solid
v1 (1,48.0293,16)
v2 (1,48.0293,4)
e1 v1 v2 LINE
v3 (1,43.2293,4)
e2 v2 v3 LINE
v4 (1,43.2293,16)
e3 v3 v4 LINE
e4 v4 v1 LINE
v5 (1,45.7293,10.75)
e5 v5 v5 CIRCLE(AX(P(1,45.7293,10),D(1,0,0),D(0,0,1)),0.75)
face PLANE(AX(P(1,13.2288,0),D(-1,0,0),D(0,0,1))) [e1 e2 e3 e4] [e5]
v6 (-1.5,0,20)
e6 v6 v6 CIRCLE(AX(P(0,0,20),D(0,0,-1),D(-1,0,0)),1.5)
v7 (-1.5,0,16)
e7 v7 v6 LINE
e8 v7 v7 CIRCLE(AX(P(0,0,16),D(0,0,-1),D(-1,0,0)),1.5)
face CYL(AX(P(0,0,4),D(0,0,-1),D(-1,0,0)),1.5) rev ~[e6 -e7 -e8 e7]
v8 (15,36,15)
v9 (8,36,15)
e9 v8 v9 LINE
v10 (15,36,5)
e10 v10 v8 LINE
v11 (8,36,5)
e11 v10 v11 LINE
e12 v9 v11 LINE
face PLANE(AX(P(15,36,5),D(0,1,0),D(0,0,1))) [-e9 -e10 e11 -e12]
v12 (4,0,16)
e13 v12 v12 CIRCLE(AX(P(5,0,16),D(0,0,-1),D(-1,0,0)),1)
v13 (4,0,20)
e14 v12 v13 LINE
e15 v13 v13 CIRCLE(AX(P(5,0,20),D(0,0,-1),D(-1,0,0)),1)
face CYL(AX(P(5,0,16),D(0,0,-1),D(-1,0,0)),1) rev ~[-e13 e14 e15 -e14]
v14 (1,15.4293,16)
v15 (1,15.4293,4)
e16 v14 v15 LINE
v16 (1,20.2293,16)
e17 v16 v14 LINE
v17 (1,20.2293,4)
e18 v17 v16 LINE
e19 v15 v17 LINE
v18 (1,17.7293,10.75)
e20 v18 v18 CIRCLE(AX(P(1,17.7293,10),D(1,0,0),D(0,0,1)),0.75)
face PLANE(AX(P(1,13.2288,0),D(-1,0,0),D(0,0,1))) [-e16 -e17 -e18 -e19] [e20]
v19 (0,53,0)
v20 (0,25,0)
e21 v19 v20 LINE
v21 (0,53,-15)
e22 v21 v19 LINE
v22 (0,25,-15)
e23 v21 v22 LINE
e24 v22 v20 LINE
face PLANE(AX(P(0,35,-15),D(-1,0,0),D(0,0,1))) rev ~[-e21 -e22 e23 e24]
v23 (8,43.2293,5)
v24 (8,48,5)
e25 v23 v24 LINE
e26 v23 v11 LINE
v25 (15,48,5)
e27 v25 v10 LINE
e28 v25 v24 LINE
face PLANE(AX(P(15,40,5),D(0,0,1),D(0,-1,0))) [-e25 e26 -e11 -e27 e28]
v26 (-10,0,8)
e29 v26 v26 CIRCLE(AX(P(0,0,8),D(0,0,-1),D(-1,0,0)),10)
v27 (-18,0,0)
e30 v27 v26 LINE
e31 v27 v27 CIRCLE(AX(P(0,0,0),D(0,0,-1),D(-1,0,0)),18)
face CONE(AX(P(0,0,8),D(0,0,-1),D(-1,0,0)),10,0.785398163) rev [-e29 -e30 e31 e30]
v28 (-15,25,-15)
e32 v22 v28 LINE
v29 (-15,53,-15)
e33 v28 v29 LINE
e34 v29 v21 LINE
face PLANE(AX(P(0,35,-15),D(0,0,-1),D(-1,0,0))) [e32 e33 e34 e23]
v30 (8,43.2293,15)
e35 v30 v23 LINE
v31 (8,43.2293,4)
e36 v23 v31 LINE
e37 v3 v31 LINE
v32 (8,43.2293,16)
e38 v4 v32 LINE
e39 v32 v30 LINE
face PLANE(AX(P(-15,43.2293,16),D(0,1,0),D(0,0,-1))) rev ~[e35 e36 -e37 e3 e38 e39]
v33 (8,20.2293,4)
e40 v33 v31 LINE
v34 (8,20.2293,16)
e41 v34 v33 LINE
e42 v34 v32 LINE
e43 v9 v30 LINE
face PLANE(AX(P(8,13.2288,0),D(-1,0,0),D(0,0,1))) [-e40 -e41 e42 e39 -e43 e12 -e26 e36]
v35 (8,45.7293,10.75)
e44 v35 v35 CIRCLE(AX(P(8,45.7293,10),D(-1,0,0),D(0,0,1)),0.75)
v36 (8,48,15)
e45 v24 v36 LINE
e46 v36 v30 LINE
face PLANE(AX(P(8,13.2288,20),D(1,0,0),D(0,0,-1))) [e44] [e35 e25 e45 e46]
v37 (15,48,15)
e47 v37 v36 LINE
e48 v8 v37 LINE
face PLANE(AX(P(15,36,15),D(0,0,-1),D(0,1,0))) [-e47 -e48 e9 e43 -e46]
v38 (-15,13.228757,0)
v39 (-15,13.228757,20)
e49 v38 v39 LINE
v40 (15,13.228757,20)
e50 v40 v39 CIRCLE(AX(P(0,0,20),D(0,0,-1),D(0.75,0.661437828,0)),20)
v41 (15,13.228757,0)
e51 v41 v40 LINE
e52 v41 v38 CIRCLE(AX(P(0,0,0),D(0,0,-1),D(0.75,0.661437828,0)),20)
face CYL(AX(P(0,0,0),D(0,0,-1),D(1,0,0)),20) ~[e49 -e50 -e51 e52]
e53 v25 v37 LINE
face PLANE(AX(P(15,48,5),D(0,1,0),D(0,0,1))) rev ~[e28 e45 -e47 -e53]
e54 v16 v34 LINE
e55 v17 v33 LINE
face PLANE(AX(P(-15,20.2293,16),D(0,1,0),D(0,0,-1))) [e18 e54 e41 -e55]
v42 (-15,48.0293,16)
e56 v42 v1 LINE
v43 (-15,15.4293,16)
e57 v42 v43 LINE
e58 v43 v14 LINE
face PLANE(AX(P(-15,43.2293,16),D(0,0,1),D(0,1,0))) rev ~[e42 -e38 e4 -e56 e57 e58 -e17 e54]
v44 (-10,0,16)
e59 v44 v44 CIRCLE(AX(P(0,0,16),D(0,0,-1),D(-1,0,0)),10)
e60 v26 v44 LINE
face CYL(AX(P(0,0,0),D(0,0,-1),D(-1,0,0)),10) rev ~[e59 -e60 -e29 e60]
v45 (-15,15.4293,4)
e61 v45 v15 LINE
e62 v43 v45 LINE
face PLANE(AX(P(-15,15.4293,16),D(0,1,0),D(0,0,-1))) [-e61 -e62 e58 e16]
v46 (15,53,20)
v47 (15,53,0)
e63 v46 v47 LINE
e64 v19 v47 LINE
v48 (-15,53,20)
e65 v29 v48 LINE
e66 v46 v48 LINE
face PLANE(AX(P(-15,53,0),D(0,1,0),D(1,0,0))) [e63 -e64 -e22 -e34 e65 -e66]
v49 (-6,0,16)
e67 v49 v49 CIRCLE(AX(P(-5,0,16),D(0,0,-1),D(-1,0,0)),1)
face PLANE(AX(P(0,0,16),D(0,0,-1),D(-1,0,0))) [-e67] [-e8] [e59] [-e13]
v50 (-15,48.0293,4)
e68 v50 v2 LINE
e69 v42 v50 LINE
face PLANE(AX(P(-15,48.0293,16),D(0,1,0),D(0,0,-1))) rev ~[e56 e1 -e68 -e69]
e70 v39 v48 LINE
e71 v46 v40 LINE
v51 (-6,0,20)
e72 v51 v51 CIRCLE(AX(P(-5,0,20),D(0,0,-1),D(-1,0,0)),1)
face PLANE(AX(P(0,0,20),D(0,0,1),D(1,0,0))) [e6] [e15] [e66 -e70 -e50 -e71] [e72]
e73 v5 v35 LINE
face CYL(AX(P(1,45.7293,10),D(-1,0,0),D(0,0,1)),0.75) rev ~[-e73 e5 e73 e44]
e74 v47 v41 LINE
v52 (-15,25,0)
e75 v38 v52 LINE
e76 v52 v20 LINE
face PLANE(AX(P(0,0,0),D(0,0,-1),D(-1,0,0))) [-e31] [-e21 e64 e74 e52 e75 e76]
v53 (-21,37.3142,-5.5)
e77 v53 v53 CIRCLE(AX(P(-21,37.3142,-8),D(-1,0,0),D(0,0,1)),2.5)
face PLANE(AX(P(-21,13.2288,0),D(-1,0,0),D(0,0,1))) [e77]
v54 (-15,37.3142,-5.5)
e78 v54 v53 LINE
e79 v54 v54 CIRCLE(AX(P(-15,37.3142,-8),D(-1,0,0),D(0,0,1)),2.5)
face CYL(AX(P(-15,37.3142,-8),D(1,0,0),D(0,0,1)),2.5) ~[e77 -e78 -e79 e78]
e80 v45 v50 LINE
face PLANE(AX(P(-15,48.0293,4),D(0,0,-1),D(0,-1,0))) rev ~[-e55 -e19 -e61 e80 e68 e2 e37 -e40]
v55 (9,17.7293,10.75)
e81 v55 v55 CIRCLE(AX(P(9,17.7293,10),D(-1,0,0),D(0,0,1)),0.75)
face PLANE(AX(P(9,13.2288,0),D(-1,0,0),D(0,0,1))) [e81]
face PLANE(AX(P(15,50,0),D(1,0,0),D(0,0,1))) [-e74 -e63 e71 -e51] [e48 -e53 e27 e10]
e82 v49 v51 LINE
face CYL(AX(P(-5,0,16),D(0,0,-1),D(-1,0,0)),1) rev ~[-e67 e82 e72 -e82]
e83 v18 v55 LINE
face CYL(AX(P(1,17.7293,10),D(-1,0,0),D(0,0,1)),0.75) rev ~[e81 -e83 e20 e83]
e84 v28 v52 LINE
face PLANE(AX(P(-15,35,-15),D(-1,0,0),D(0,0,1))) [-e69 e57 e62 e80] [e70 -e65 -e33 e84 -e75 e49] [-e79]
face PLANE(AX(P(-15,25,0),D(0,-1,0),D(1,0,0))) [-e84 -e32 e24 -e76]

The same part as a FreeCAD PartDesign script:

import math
import FreeCAD as App
import Part
import Sketcher
from FreeCAD import Vector
Q = App.Units.Quantity


def edges_at(feature, points):
    """Names of the edges that pass closest to the given points."""
    edges = feature.Shape.Edges
    near = lambda p: min(range(len(edges)), key=lambda i: edges[i].distToShape(Part.Vertex(*p))[0])
    return sorted({f"Edge{near(p) + 1}" for p in points})


def add_polygon(sketch, points):
    """Adds a closed chain of lines whose ends are joined by coincident constraints."""
    first, n = sketch.GeometryCount, len(points)
    for a, b in zip(points, points[1:] + points[:1]):
        sketch.addGeometry(Part.LineSegment(App.Vector(*a, 0), App.Vector(*b, 0)), False)
    for i in range(n):
        sketch.addConstraint(Sketcher.Constraint("Coincident", first + i, 2, first + (i + 1) % n, 1))

doc = App.newDocument("Part")
body = doc.addObject("PartDesign::Body", "Body")

# Sketch on XY plane
sketch1 = body.newObject("Sketcher::SketchObject", "Sketch")
sketch1.AttachmentSupport = (doc.getObject("XY_Plane"), [""])
sketch1.MapMode = "FlatFace"
sketch1.addGeometry([
    Part.ArcOfCircle(Part.Circle(Vector(0, 0, 0), Vector(0, 0, 1), 20), math.radians(139), math.radians(401)),
    Part.LineSegment(Vector(15, 13, 0), Vector(15, 50, 0)),
    Part.LineSegment(Vector(15, 50, 0), Vector(-15, 50, 0)),
    Part.LineSegment(Vector(-15, 50, 0), Vector(-15, 13, 0)),
], False)
sketch1.addConstraint([
    Sketcher.Constraint("Coincident", 0, 2, 1, 1),
    Sketcher.Constraint("Coincident", 1, 2, 2, 1),
    Sketcher.Constraint("Coincident", 2, 2, 3, 1),
    Sketcher.Constraint("Coincident", 3, 2, 0, 1),
    Sketcher.Constraint("Vertical", 1),
    Sketcher.Constraint("Horizontal", 2),
    Sketcher.Constraint("Vertical", 3),
    Sketcher.Constraint("Coincident", 0, 3, -1, 1),
    Sketcher.Constraint("Horizontal", 0, 2, 3, 2),
    Sketcher.Constraint("Radius", 0, Q("20 mm")),
    Sketcher.Constraint("DistanceX", 2, 2, 2, 1, Q("30 mm")),
    Sketcher.Constraint("DistanceY", -1, 1, 1, 2, Q("50 mm")),
])
pad1 = body.newObject("PartDesign::Pad", "Pad")
pad1.Profile = sketch1
pad1.Length = 20

# Sketch on XY plane
sketch2 = body.newObject("Sketcher::SketchObject", "Sketch001")
sketch2.AttachmentSupport = (doc.getObject("XY_Plane"), [""])
sketch2.MapMode = "FlatFace"
sketch2.AttachmentOffset = App.Placement(Vector(0, 0, 20), App.Rotation())
sketch2.addGeometry(Part.Circle(Vector(0, 0, 0), Vector(0, 0, 1), 10), False)
sketch2.addConstraint([
    Sketcher.Constraint("Coincident", 0, 3, -1, 1),
    Sketcher.Constraint("Diameter", 0, Q("20 mm")),
])
pocket1 = body.newObject("PartDesign::Pocket", "Pocket")
pocket1.Profile = sketch2
pocket1.Length = 15

# Sketch on YZ plane
sketch3 = body.newObject("Sketcher::SketchObject", "Sketch002")
sketch3.AttachmentSupport = (doc.getObject("YZ_Plane"), [""])
sketch3.MapMode = "FlatFace"
sketch3.AttachmentOffset = App.Placement(Vector(0, 0, -15), App.Rotation())
add_polygon(sketch3, [(43, 16), (43, 4), (20, 4), (20, 16)])  # lines 0-3
sketch3.addConstraint([
    Sketcher.Constraint("Vertical", 0),
    Sketcher.Constraint("Horizontal", 1),
    Sketcher.Constraint("Vertical", 2),
    Sketcher.Constraint("Horizontal", 3),
    Sketcher.Constraint("DistanceX", 1, 2, 1, 1, Q("23 mm")),
    Sketcher.Constraint("DistanceY", 0, 2, 0, 1, Q("12 mm")),
    Sketcher.Constraint("DistanceY", -1, 1, 0, 2, Q("4 mm")),
    Sketcher.Constraint("DistanceX", -1, 1, 0, 2, Q("43.2293 mm")),
])
pocket2 = body.newObject("PartDesign::Pocket", "Pocket001")
pocket2.Profile = sketch3
pocket2.Length = 23
pocket2.Reversed = True

# Sketch on YZ plane
sketch4 = body.newObject("Sketcher::SketchObject", "Sketch003")
sketch4.AttachmentSupport = (doc.getObject("YZ_Plane"), [""])
sketch4.MapMode = "FlatFace"
sketch4.AttachmentOffset = App.Placement(Vector(0, 0, -15), App.Rotation())
add_polygon(sketch4, [(48, 4), (43.2, 4), (43.2, 16), (48, 16)])  # lines 0-3
add_polygon(sketch4, [(20.2, 16), (20.2, 4), (15.4, 4), (15.4, 16)])  # lines 4-7
sketch4.addConstraint([
    Sketcher.Constraint("Horizontal", 0),
    Sketcher.Constraint("Vertical", 1),
    Sketcher.Constraint("Horizontal", 2),
    Sketcher.Constraint("Vertical", 3),
    Sketcher.Constraint("Vertical", 4),
    Sketcher.Constraint("Horizontal", 5),
    Sketcher.Constraint("Vertical", 6),
    Sketcher.Constraint("Horizontal", 7),
    Sketcher.Constraint("Horizontal", 3, 2, 4, 2),
    Sketcher.Constraint("Horizontal", 2, 2, 6, 2),
    Sketcher.Constraint("Equal", 2, 5),
    Sketcher.Constraint("DistanceY", 1, 1, 1, 2, Q("12 mm")),
    Sketcher.Constraint("DistanceX", 0, 2, 0, 1, Q("4.8 mm")),
    Sketcher.Constraint("DistanceY", -1, 1, 0, 2, Q("4 mm")),
    Sketcher.Constraint("DistanceX", 4, 2, 0, 2, Q("23 mm")),
    Sketcher.Constraint("DistanceX", -1, 1, 0, 2, Q("43.2293 mm")),
])
pocket3 = body.newObject("PartDesign::Pocket", "Pocket002")
pocket3.Profile = sketch4
pocket3.Length = 16
pocket3.Reversed = True

# Sketch on YZ plane
sketch5 = body.newObject("Sketcher::SketchObject", "Sketch004")
sketch5.AttachmentSupport = (doc.getObject("YZ_Plane"), [""])
sketch5.MapMode = "FlatFace"
sketch5.AttachmentOffset = App.Placement(Vector(0, 0, 1), App.Rotation())
sketch5.addGeometry([
    Part.Circle(Vector(45.7, 10, 0), Vector(0, 0, 1), 0.8),
    Part.Circle(Vector(17.7, 10, 0), Vector(0, 0, 1), 0.8),
], False)
sketch5.addConstraint([
    Sketcher.Constraint("Equal", 0, 1),
    Sketcher.Constraint("Horizontal", 0, 3, 1, 3),
    Sketcher.Constraint("Diameter", 0, Q("1.5 mm")),
    Sketcher.Constraint("DistanceY", -1, 1, 0, 3, Q("10 mm")),
    Sketcher.Constraint("DistanceX", 1, 3, 0, 3, Q("28 mm")),
    Sketcher.Constraint("DistanceX", -1, 1, 0, 3, Q("45.7293 mm")),
])
pocket4 = body.newObject("PartDesign::Pocket", "Pocket003")
pocket4.Profile = sketch5
pocket4.Length = 8
pocket4.Reversed = True

# Sketch on YZ plane
sketch6 = body.newObject("Sketcher::SketchObject", "Sketch005")
sketch6.AttachmentSupport = (doc.getObject("YZ_Plane"), [""])
sketch6.MapMode = "FlatFace"
sketch6.AttachmentOffset = App.Placement(Vector(0, 0, 15), App.Rotation())
add_polygon(sketch6, [(36, 5), (40, 5), (40, 15), (36, 15)])  # lines 0-3
sketch6.addConstraint([
    Sketcher.Constraint("Horizontal", 0),
    Sketcher.Constraint("Vertical", 1),
    Sketcher.Constraint("Horizontal", 2),
    Sketcher.Constraint("Vertical", 3),
    Sketcher.Constraint("DistanceY", 1, 1, 1, 2, Q("10 mm")),
    Sketcher.Constraint("DistanceY", -1, 1, 0, 2, Q("5 mm")),
    Sketcher.Constraint("DistanceX", 0, 1, 0, 2, Q("4 mm")),
    Sketcher.Constraint("DistanceX", -1, 1, 0, 2, Q("40 mm")),
])
pocket5 = body.newObject("PartDesign::Pocket", "Pocket004")
pocket5.Profile = sketch6
pocket5.Length = 15.8125

# Sketch on XY plane
sketch7 = body.newObject("Sketcher::SketchObject", "Sketch006")
sketch7.AttachmentSupport = (doc.getObject("XY_Plane"), [""])
sketch7.MapMode = "FlatFace"
sketch7.AttachmentOffset = App.Placement(Vector(0, 0, 5), App.Rotation())
sketch7.addGeometry([
    Part.Circle(Vector(0, 0, 0), Vector(0, 0, 1), 1.5),
    Part.Circle(Vector(7, 0, 0), Vector(0, 0, 1), 1.5),
    Part.Circle(Vector(-7, 0, 0), Vector(0, 0, 1), 1.5),
], False)
sketch7.addConstraint([
    Sketcher.Constraint("Coincident", 0, 3, -1, 1),
    Sketcher.Constraint("Equal", 0, 1),
    Sketcher.Constraint("Equal", 1, 2),
    Sketcher.Constraint("Symmetric", 1, 3, 2, 3, -1, 1),
    Sketcher.Constraint("PointOnObject", 1, 3, -1),
    Sketcher.Constraint("Diameter", 0, Q("3 mm")),
    Sketcher.Constraint("DistanceX", -1, 1, 1, 3, Q("7 mm")),
])
pocket6 = body.newObject("PartDesign::Pocket", "Pocket005")
pocket6.Profile = sketch7
pocket6.Length = 8

# Sketch on XZ plane
sketch8 = body.newObject("Sketcher::SketchObject", "Sketch007")
sketch8.AttachmentSupport = (doc.getObject("XZ_Plane"), [""])
sketch8.MapMode = "FlatFace"
sketch8.AttachmentOffset = App.Placement(Vector(0, 0, -50), App.Rotation())
add_polygon(sketch8, [(14, 0), (-15, 0), (-15, 20), (14, 20)])  # lines 0-3
sketch8.addConstraint([
    Sketcher.Constraint("Horizontal", 0),
    Sketcher.Constraint("Vertical", 1),
    Sketcher.Constraint("Horizontal", 2),
    Sketcher.Constraint("Vertical", 3),
    Sketcher.Constraint("PointOnObject", 0, 2, -1),
    Sketcher.Constraint("DistanceY", 1, 1, 1, 2, Q("20 mm")),
    Sketcher.Constraint("DistanceX", 0, 2, -1, 1, Q("15 mm")),
    Sketcher.Constraint("DistanceX", 0, 2, 0, 1, Q("29.4792 mm")),
])
pad2 = body.newObject("PartDesign::Pad", "Pad001")
pad2.Profile = sketch8
pad2.Length = 10
pad2.Reversed = True

# Sketch on YZ plane
sketch9 = body.newObject("Sketcher::SketchObject", "Sketch008")
sketch9.AttachmentSupport = (doc.getObject("YZ_Plane"), [""])
sketch9.MapMode = "FlatFace"
sketch9.AttachmentOffset = App.Placement(Vector(0, 0, 14.4792), App.Rotation())
add_polygon(sketch9, [(50, 20), (50, 0), (60, 0), (60, 20)])  # lines 0-3
sketch9.addConstraint([
    Sketcher.Constraint("Vertical", 0),
    Sketcher.Constraint("Horizontal", 1),
    Sketcher.Constraint("Vertical", 2),
    Sketcher.Constraint("Horizontal", 3),
    Sketcher.Constraint("PointOnObject", 0, 2, -1),
    Sketcher.Constraint("DistanceX", 1, 1, 1, 2, Q("10 mm")),
    Sketcher.Constraint("DistanceY", 0, 2, 0, 1, Q("20 mm")),
    Sketcher.Constraint("DistanceX", -1, 1, 0, 2, Q("50 mm")),
])
pocket7 = body.newObject("PartDesign::Pocket", "Pocket006")
pocket7.Profile = sketch9
pocket7.Length = 59.6125

# Sketch on XZ plane
sketch10 = body.newObject("Sketcher::SketchObject", "Sketch009")
sketch10.AttachmentSupport = (doc.getObject("XZ_Plane"), [""])
sketch10.MapMode = "FlatFace"
sketch10.AttachmentOffset = App.Placement(Vector(0, 0, -50), App.Rotation())
add_polygon(sketch10, [(15, 20), (15, 0), (-15, 0), (-15, 20)])  # lines 0-3
sketch10.addConstraint([
    Sketcher.Constraint("Vertical", 0),
    Sketcher.Constraint("Horizontal", 1),
    Sketcher.Constraint("Vertical", 2),
    Sketcher.Constraint("Horizontal", 3),
    Sketcher.Constraint("Symmetric", 0, 2, 1, 2, -1, 1),
    Sketcher.Constraint("DistanceX", 1, 2, 1, 1, Q("30 mm")),
    Sketcher.Constraint("DistanceY", 0, 2, 0, 1, Q("20 mm")),
])
pad3 = body.newObject("PartDesign::Pad", "Pad002")
pad3.Profile = sketch10
pad3.Length = 10
pad3.Reversed = True

# Sketch on XY plane
sketch11 = body.newObject("Sketcher::SketchObject", "Sketch010")
sketch11.AttachmentSupport = (doc.getObject("XY_Plane"), [""])
sketch11.MapMode = "FlatFace"
add_polygon(sketch11, [(15, 35), (-15, 35), (-15, 60), (15, 60)])  # lines 0-3
sketch11.addConstraint([
    Sketcher.Constraint("Horizontal", 0),
    Sketcher.Constraint("Vertical", 1),
    Sketcher.Constraint("Horizontal", 2),
    Sketcher.Constraint("Vertical", 3),
    Sketcher.Constraint("DistanceX", 0, 2, -1, 1, Q("15 mm")),
    Sketcher.Constraint("DistanceX", -1, 1, 2, 2, Q("15 mm")),
    Sketcher.Constraint("DistanceY", 1, 1, 1, 2, Q("25 mm")),
    Sketcher.Constraint("DistanceY", -1, 1, 0, 2, Q("35 mm")),
])
pad4 = body.newObject("PartDesign::Pad", "Pad003")
pad4.Profile = sketch11
pad4.Length = 10
pad4.Reversed = True

# Sketch on XY plane
sketch12 = body.newObject("Sketcher::SketchObject", "Sketch011")
sketch12.AttachmentSupport = (doc.getObject("XY_Plane"), [""])
sketch12.MapMode = "FlatFace"
sketch12.AttachmentOffset = App.Placement(Vector(0, 0, 20), App.Rotation())
add_polygon(sketch12, [(0, 60), (-15, 60), (-15, 35), (0, 35)])  # lines 0-3
sketch12.addConstraint([
    Sketcher.Constraint("Horizontal", 0),
    Sketcher.Constraint("Vertical", 1),
    Sketcher.Constraint("Horizontal", 2),
    Sketcher.Constraint("Vertical", 3),
    Sketcher.Constraint("PointOnObject", 2, 2, -2),
    Sketcher.Constraint("DistanceY", 1, 2, 1, 1, Q("25 mm")),
    Sketcher.Constraint("DistanceX", 0, 2, 0, 1, Q("15 mm")),
    Sketcher.Constraint("DistanceY", -1, 1, 0, 2, Q("60 mm")),
])
pad5 = body.newObject("PartDesign::Pad", "Pad004")
pad5.Profile = sketch12
pad5.Length = 10

# Sketch on XY plane
sketch13 = body.newObject("Sketcher::SketchObject", "Sketch012")
sketch13.AttachmentSupport = (doc.getObject("XY_Plane"), [""])
sketch13.MapMode = "FlatFace"
sketch13.AttachmentOffset = App.Placement(Vector(0, 0, -10), App.Rotation())
add_polygon(sketch13, [(15, 60), (15, 35), (0, 35), (0, 60)])  # lines 0-3
sketch13.addConstraint([
    Sketcher.Constraint("Vertical", 0),
    Sketcher.Constraint("Horizontal", 1),
    Sketcher.Constraint("Vertical", 2),
    Sketcher.Constraint("Horizontal", 3),
    Sketcher.Constraint("PointOnObject", 1, 2, -2),
    Sketcher.Constraint("DistanceX", 1, 2, 1, 1, Q("15 mm")),
    Sketcher.Constraint("DistanceY", 0, 2, 0, 1, Q("25 mm")),
    Sketcher.Constraint("DistanceY", -1, 1, 0, 2, Q("35 mm")),
])
pocket8 = body.newObject("PartDesign::Pocket", "Pocket007")
pocket8.Profile = sketch13
pocket8.Length = 10
pocket8.Reversed = True

# Sketch on XY plane
sketch14 = body.newObject("Sketcher::SketchObject", "Sketch013")
sketch14.AttachmentSupport = (doc.getObject("XY_Plane"), [""])
sketch14.MapMode = "FlatFace"
sketch14.AttachmentOffset = App.Placement(Vector(0, 0, 20), App.Rotation())
sketch14.addGeometry(Part.Circle(Vector(0, 0, 0), Vector(0, 0, 1), 10), False)
sketch14.addConstraint([
    Sketcher.Constraint("Coincident", 0, 3, -1, 1),
    Sketcher.Constraint("Diameter", 0, Q("20 mm")),
])
pad6 = body.newObject("PartDesign::Pad", "Pad005")
pad6.Profile = sketch14
pad6.Length = 16
pad6.Reversed = True

# Sketch on XY plane
sketch15 = body.newObject("Sketcher::SketchObject", "Sketch014")
sketch15.AttachmentSupport = (doc.getObject("XY_Plane"), [""])
sketch15.MapMode = "FlatFace"
sketch15.addGeometry([
    Part.Circle(Vector(0, 0, 0), Vector(0, 0, 1), 10),
    Part.Circle(Vector(0, 0, 0), Vector(0, 0, 1), 1.5),
], False)
sketch15.addConstraint([
    Sketcher.Constraint("Coincident", 0, 3, -1, 1),
    Sketcher.Constraint("Coincident", 1, 3, -1, 1),
    Sketcher.Constraint("Diameter", 0, Q("20 mm")),
    Sketcher.Constraint("Diameter", 1, Q("3 mm")),
])
pocket9 = body.newObject("PartDesign::Pocket", "Pocket008")
pocket9.Profile = sketch15
pocket9.Length = 16
pocket9.Reversed = True

# Sketch on XY plane
sketch16 = body.newObject("Sketcher::SketchObject", "Sketch015")
sketch16.AttachmentSupport = (doc.getObject("XY_Plane"), [""])
sketch16.MapMode = "FlatFace"
sketch16.AttachmentOffset = App.Placement(Vector(0, 0, 4), App.Rotation())
sketch16.addGeometry(Part.Circle(Vector(0, 0, 0), Vector(0, 0, 1), 1.5), False)
sketch16.addConstraint([
    Sketcher.Constraint("Coincident", 0, 3, -1, 1),
    Sketcher.Constraint("Diameter", 0, Q("3 mm")),
])
pocket10 = body.newObject("PartDesign::Pocket", "Pocket009")
pocket10.Profile = sketch16
pocket10.Length = 30.0375
pocket10.Reversed = True

# Sketch on XY plane
sketch17 = body.newObject("Sketcher::SketchObject", "Sketch016")
sketch17.AttachmentSupport = (doc.getObject("XY_Plane"), [""])
sketch17.MapMode = "FlatFace"
sketch17.AttachmentOffset = App.Placement(Vector(0, 0, 16), App.Rotation())
sketch17.addGeometry([
    Part.Circle(Vector(-5, 0, 0), Vector(0, 0, 1), 1),
    Part.Circle(Vector(5, 0, 0), Vector(0, 0, 1), 1),
], False)
sketch17.addConstraint([
    Sketcher.Constraint("Equal", 0, 1),
    Sketcher.Constraint("Symmetric", 0, 3, 1, 3, -1, 1),
    Sketcher.Constraint("PointOnObject", 0, 3, -1),
    Sketcher.Constraint("Diameter", 0, Q("2 mm")),
    Sketcher.Constraint("DistanceX", 0, 3, -1, 1, Q("5 mm")),
])
pocket11 = body.newObject("PartDesign::Pocket", "Pocket010")
pocket11.Profile = sketch17
pocket11.Length = 138.2375
pocket11.Reversed = True
doc.recompute()

chamfer = body.newObject("PartDesign::Chamfer", "Chamfer")
chamfer.Base = (pocket11, edges_at(pocket11, [(10, 0, 0)]))
chamfer.Size = 8

# Sketch on YZ plane
sketch18 = body.newObject("Sketcher::SketchObject", "Sketch017")
sketch18.AttachmentSupport = (doc.getObject("YZ_Plane"), [""])
sketch18.MapMode = "FlatFace"
sketch18.AttachmentOffset = App.Placement(Vector(0, 0, 15), App.Rotation())
add_polygon(sketch18, [(48, 15), (40, 15), (40, 5), (48, 5)])  # lines 0-3
sketch18.addConstraint([
    Sketcher.Constraint("Horizontal", 0),
    Sketcher.Constraint("Vertical", 1),
    Sketcher.Constraint("Horizontal", 2),
    Sketcher.Constraint("Vertical", 3),
    Sketcher.Constraint("DistanceX", 0, 2, 0, 1, Q("8 mm")),
    Sketcher.Constraint("DistanceY", 1, 2, 1, 1, Q("10 mm")),
    Sketcher.Constraint("DistanceX", -1, 1, 0, 2, Q("40 mm")),
    Sketcher.Constraint("DistanceY", -1, 1, 0, 2, Q("15 mm")),
])
pocket12 = body.newObject("PartDesign::Pocket", "Pocket011")
pocket12.Profile = sketch18
pocket12.Length = 7

# Sketch on YZ plane
sketch19 = body.newObject("Sketcher::SketchObject", "Sketch018")
sketch19.AttachmentSupport = (doc.getObject("YZ_Plane"), [""])
sketch19.MapMode = "FlatFace"
sketch19.AttachmentOffset = App.Placement(Vector(0, 0, -15), App.Rotation())
add_polygon(sketch19, [(35, 20), (35, 30), (62, 30), (62, 20)])  # lines 0-3
sketch19.addConstraint([
    Sketcher.Constraint("Vertical", 0),
    Sketcher.Constraint("Horizontal", 1),
    Sketcher.Constraint("Vertical", 2),
    Sketcher.Constraint("Horizontal", 3),
    Sketcher.Constraint("DistanceY", 0, 1, 0, 2, Q("10 mm")),
    Sketcher.Constraint("DistanceX", -1, 1, 0, 2, Q("35 mm")),
    Sketcher.Constraint("DistanceY", -1, 1, 0, 2, Q("30 mm")),
    Sketcher.Constraint("DistanceX", 1, 1, 1, 2, Q("26.6677 mm")),
])
pocket13 = body.newObject("PartDesign::Pocket", "Pocket012")
pocket13.Profile = sketch19
pocket13.Length = 36.0375
pocket13.Reversed = True

# Sketch on XY plane
sketch20 = body.newObject("Sketcher::SketchObject", "Sketch019")
sketch20.AttachmentSupport = (doc.getObject("XY_Plane"), [""])
sketch20.MapMode = "FlatFace"
sketch20.AttachmentOffset = App.Placement(Vector(0, 0, -10), App.Rotation())
add_polygon(sketch20, [(0, 60), (0, 35), (-15, 35), (-15, 60)])  # lines 0-3
sketch20.addConstraint([
    Sketcher.Constraint("Vertical", 0),
    Sketcher.Constraint("Horizontal", 1),
    Sketcher.Constraint("Vertical", 2),
    Sketcher.Constraint("Horizontal", 3),
    Sketcher.Constraint("PointOnObject", 0, 2, -2),
    Sketcher.Constraint("DistanceX", 1, 2, 1, 1, Q("15 mm")),
    Sketcher.Constraint("DistanceY", 0, 2, 0, 1, Q("25 mm")),
    Sketcher.Constraint("DistanceY", -1, 1, 0, 2, Q("35 mm")),
])
pad7 = body.newObject("PartDesign::Pad", "Pad006")
pad7.Profile = sketch20
pad7.Length = 5
pad7.Reversed = True

# Sketch on XZ plane
sketch21 = body.newObject("Sketcher::SketchObject", "Sketch020")
sketch21.AttachmentSupport = (doc.getObject("XZ_Plane"), [""])
sketch21.MapMode = "FlatFace"
sketch21.AttachmentOffset = App.Placement(Vector(0, 0, -35), App.Rotation())
add_polygon(sketch21, [(-15, -15), (0, -15), (0, 0), (-15, 0)])  # lines 0-3
sketch21.addConstraint([
    Sketcher.Constraint("Horizontal", 0),
    Sketcher.Constraint("Vertical", 1),
    Sketcher.Constraint("Horizontal", 2),
    Sketcher.Constraint("Vertical", 3),
    Sketcher.Constraint("Coincident", 1, 2, -1, 1),
    Sketcher.Constraint("Equal", 2, 1),
    Sketcher.Constraint("DistanceX", 0, 1, 0, 2, Q("15 mm")),
])
pad8 = body.newObject("PartDesign::Pad", "Pad007")
pad8.Profile = sketch21
pad8.Length = 10

# Sketch on YZ plane
sketch22 = body.newObject("Sketcher::SketchObject", "Sketch021")
sketch22.AttachmentSupport = (doc.getObject("YZ_Plane"), [""])
sketch22.MapMode = "FlatFace"
sketch22.AttachmentOffset = App.Placement(Vector(0, 0, -15), App.Rotation())
sketch22.addGeometry(Part.Circle(Vector(37.3, -8, 0), Vector(0, 0, 1), 2.5), False)
sketch22.addConstraint([
    Sketcher.Constraint("Diameter", 0, Q("5 mm")),
    Sketcher.Constraint("DistanceY", 0, 3, -1, 1, Q("8 mm")),
    Sketcher.Constraint("DistanceX", -1, 1, 0, 3, Q("37.3142 mm")),
])
pad9 = body.newObject("PartDesign::Pad", "Pad008")
pad9.Profile = sketch22
pad9.Length = 6
pad9.Reversed = True

# Sketch on XZ plane
sketch23 = body.newObject("Sketcher::SketchObject", "Sketch022")
sketch23.AttachmentSupport = (doc.getObject("XZ_Plane"), [""])
sketch23.MapMode = "FlatFace"
sketch23.AttachmentOffset = App.Placement(Vector(0, 0, -60), App.Rotation())
add_polygon(sketch23, [(-15, -15), (-15, 20), (15, 20), (15, 0), (0, 0), (0, -15)])  # lines 0-5
sketch23.addConstraint([
    Sketcher.Constraint("Vertical", 0),
    Sketcher.Constraint("Horizontal", 1),
    Sketcher.Constraint("Vertical", 2),
    Sketcher.Constraint("Horizontal", 3),
    Sketcher.Constraint("Vertical", 4),
    Sketcher.Constraint("Horizontal", 5),
    Sketcher.Constraint("Coincident", 3, 2, -1, 1),
    Sketcher.Constraint("Equal", 3, 5),
    Sketcher.Constraint("Equal", 5, 4),
    Sketcher.Constraint("DistanceX", 1, 1, 1, 2, Q("30 mm")),
    Sketcher.Constraint("DistanceY", 0, 1, 0, 2, Q("35 mm")),
])
pocket14 = body.newObject("PartDesign::Pocket", "Pocket013")
pocket14.Profile = sketch23
pocket14.Length = 7
pocket14.Reversed = True

doc.recompute()
